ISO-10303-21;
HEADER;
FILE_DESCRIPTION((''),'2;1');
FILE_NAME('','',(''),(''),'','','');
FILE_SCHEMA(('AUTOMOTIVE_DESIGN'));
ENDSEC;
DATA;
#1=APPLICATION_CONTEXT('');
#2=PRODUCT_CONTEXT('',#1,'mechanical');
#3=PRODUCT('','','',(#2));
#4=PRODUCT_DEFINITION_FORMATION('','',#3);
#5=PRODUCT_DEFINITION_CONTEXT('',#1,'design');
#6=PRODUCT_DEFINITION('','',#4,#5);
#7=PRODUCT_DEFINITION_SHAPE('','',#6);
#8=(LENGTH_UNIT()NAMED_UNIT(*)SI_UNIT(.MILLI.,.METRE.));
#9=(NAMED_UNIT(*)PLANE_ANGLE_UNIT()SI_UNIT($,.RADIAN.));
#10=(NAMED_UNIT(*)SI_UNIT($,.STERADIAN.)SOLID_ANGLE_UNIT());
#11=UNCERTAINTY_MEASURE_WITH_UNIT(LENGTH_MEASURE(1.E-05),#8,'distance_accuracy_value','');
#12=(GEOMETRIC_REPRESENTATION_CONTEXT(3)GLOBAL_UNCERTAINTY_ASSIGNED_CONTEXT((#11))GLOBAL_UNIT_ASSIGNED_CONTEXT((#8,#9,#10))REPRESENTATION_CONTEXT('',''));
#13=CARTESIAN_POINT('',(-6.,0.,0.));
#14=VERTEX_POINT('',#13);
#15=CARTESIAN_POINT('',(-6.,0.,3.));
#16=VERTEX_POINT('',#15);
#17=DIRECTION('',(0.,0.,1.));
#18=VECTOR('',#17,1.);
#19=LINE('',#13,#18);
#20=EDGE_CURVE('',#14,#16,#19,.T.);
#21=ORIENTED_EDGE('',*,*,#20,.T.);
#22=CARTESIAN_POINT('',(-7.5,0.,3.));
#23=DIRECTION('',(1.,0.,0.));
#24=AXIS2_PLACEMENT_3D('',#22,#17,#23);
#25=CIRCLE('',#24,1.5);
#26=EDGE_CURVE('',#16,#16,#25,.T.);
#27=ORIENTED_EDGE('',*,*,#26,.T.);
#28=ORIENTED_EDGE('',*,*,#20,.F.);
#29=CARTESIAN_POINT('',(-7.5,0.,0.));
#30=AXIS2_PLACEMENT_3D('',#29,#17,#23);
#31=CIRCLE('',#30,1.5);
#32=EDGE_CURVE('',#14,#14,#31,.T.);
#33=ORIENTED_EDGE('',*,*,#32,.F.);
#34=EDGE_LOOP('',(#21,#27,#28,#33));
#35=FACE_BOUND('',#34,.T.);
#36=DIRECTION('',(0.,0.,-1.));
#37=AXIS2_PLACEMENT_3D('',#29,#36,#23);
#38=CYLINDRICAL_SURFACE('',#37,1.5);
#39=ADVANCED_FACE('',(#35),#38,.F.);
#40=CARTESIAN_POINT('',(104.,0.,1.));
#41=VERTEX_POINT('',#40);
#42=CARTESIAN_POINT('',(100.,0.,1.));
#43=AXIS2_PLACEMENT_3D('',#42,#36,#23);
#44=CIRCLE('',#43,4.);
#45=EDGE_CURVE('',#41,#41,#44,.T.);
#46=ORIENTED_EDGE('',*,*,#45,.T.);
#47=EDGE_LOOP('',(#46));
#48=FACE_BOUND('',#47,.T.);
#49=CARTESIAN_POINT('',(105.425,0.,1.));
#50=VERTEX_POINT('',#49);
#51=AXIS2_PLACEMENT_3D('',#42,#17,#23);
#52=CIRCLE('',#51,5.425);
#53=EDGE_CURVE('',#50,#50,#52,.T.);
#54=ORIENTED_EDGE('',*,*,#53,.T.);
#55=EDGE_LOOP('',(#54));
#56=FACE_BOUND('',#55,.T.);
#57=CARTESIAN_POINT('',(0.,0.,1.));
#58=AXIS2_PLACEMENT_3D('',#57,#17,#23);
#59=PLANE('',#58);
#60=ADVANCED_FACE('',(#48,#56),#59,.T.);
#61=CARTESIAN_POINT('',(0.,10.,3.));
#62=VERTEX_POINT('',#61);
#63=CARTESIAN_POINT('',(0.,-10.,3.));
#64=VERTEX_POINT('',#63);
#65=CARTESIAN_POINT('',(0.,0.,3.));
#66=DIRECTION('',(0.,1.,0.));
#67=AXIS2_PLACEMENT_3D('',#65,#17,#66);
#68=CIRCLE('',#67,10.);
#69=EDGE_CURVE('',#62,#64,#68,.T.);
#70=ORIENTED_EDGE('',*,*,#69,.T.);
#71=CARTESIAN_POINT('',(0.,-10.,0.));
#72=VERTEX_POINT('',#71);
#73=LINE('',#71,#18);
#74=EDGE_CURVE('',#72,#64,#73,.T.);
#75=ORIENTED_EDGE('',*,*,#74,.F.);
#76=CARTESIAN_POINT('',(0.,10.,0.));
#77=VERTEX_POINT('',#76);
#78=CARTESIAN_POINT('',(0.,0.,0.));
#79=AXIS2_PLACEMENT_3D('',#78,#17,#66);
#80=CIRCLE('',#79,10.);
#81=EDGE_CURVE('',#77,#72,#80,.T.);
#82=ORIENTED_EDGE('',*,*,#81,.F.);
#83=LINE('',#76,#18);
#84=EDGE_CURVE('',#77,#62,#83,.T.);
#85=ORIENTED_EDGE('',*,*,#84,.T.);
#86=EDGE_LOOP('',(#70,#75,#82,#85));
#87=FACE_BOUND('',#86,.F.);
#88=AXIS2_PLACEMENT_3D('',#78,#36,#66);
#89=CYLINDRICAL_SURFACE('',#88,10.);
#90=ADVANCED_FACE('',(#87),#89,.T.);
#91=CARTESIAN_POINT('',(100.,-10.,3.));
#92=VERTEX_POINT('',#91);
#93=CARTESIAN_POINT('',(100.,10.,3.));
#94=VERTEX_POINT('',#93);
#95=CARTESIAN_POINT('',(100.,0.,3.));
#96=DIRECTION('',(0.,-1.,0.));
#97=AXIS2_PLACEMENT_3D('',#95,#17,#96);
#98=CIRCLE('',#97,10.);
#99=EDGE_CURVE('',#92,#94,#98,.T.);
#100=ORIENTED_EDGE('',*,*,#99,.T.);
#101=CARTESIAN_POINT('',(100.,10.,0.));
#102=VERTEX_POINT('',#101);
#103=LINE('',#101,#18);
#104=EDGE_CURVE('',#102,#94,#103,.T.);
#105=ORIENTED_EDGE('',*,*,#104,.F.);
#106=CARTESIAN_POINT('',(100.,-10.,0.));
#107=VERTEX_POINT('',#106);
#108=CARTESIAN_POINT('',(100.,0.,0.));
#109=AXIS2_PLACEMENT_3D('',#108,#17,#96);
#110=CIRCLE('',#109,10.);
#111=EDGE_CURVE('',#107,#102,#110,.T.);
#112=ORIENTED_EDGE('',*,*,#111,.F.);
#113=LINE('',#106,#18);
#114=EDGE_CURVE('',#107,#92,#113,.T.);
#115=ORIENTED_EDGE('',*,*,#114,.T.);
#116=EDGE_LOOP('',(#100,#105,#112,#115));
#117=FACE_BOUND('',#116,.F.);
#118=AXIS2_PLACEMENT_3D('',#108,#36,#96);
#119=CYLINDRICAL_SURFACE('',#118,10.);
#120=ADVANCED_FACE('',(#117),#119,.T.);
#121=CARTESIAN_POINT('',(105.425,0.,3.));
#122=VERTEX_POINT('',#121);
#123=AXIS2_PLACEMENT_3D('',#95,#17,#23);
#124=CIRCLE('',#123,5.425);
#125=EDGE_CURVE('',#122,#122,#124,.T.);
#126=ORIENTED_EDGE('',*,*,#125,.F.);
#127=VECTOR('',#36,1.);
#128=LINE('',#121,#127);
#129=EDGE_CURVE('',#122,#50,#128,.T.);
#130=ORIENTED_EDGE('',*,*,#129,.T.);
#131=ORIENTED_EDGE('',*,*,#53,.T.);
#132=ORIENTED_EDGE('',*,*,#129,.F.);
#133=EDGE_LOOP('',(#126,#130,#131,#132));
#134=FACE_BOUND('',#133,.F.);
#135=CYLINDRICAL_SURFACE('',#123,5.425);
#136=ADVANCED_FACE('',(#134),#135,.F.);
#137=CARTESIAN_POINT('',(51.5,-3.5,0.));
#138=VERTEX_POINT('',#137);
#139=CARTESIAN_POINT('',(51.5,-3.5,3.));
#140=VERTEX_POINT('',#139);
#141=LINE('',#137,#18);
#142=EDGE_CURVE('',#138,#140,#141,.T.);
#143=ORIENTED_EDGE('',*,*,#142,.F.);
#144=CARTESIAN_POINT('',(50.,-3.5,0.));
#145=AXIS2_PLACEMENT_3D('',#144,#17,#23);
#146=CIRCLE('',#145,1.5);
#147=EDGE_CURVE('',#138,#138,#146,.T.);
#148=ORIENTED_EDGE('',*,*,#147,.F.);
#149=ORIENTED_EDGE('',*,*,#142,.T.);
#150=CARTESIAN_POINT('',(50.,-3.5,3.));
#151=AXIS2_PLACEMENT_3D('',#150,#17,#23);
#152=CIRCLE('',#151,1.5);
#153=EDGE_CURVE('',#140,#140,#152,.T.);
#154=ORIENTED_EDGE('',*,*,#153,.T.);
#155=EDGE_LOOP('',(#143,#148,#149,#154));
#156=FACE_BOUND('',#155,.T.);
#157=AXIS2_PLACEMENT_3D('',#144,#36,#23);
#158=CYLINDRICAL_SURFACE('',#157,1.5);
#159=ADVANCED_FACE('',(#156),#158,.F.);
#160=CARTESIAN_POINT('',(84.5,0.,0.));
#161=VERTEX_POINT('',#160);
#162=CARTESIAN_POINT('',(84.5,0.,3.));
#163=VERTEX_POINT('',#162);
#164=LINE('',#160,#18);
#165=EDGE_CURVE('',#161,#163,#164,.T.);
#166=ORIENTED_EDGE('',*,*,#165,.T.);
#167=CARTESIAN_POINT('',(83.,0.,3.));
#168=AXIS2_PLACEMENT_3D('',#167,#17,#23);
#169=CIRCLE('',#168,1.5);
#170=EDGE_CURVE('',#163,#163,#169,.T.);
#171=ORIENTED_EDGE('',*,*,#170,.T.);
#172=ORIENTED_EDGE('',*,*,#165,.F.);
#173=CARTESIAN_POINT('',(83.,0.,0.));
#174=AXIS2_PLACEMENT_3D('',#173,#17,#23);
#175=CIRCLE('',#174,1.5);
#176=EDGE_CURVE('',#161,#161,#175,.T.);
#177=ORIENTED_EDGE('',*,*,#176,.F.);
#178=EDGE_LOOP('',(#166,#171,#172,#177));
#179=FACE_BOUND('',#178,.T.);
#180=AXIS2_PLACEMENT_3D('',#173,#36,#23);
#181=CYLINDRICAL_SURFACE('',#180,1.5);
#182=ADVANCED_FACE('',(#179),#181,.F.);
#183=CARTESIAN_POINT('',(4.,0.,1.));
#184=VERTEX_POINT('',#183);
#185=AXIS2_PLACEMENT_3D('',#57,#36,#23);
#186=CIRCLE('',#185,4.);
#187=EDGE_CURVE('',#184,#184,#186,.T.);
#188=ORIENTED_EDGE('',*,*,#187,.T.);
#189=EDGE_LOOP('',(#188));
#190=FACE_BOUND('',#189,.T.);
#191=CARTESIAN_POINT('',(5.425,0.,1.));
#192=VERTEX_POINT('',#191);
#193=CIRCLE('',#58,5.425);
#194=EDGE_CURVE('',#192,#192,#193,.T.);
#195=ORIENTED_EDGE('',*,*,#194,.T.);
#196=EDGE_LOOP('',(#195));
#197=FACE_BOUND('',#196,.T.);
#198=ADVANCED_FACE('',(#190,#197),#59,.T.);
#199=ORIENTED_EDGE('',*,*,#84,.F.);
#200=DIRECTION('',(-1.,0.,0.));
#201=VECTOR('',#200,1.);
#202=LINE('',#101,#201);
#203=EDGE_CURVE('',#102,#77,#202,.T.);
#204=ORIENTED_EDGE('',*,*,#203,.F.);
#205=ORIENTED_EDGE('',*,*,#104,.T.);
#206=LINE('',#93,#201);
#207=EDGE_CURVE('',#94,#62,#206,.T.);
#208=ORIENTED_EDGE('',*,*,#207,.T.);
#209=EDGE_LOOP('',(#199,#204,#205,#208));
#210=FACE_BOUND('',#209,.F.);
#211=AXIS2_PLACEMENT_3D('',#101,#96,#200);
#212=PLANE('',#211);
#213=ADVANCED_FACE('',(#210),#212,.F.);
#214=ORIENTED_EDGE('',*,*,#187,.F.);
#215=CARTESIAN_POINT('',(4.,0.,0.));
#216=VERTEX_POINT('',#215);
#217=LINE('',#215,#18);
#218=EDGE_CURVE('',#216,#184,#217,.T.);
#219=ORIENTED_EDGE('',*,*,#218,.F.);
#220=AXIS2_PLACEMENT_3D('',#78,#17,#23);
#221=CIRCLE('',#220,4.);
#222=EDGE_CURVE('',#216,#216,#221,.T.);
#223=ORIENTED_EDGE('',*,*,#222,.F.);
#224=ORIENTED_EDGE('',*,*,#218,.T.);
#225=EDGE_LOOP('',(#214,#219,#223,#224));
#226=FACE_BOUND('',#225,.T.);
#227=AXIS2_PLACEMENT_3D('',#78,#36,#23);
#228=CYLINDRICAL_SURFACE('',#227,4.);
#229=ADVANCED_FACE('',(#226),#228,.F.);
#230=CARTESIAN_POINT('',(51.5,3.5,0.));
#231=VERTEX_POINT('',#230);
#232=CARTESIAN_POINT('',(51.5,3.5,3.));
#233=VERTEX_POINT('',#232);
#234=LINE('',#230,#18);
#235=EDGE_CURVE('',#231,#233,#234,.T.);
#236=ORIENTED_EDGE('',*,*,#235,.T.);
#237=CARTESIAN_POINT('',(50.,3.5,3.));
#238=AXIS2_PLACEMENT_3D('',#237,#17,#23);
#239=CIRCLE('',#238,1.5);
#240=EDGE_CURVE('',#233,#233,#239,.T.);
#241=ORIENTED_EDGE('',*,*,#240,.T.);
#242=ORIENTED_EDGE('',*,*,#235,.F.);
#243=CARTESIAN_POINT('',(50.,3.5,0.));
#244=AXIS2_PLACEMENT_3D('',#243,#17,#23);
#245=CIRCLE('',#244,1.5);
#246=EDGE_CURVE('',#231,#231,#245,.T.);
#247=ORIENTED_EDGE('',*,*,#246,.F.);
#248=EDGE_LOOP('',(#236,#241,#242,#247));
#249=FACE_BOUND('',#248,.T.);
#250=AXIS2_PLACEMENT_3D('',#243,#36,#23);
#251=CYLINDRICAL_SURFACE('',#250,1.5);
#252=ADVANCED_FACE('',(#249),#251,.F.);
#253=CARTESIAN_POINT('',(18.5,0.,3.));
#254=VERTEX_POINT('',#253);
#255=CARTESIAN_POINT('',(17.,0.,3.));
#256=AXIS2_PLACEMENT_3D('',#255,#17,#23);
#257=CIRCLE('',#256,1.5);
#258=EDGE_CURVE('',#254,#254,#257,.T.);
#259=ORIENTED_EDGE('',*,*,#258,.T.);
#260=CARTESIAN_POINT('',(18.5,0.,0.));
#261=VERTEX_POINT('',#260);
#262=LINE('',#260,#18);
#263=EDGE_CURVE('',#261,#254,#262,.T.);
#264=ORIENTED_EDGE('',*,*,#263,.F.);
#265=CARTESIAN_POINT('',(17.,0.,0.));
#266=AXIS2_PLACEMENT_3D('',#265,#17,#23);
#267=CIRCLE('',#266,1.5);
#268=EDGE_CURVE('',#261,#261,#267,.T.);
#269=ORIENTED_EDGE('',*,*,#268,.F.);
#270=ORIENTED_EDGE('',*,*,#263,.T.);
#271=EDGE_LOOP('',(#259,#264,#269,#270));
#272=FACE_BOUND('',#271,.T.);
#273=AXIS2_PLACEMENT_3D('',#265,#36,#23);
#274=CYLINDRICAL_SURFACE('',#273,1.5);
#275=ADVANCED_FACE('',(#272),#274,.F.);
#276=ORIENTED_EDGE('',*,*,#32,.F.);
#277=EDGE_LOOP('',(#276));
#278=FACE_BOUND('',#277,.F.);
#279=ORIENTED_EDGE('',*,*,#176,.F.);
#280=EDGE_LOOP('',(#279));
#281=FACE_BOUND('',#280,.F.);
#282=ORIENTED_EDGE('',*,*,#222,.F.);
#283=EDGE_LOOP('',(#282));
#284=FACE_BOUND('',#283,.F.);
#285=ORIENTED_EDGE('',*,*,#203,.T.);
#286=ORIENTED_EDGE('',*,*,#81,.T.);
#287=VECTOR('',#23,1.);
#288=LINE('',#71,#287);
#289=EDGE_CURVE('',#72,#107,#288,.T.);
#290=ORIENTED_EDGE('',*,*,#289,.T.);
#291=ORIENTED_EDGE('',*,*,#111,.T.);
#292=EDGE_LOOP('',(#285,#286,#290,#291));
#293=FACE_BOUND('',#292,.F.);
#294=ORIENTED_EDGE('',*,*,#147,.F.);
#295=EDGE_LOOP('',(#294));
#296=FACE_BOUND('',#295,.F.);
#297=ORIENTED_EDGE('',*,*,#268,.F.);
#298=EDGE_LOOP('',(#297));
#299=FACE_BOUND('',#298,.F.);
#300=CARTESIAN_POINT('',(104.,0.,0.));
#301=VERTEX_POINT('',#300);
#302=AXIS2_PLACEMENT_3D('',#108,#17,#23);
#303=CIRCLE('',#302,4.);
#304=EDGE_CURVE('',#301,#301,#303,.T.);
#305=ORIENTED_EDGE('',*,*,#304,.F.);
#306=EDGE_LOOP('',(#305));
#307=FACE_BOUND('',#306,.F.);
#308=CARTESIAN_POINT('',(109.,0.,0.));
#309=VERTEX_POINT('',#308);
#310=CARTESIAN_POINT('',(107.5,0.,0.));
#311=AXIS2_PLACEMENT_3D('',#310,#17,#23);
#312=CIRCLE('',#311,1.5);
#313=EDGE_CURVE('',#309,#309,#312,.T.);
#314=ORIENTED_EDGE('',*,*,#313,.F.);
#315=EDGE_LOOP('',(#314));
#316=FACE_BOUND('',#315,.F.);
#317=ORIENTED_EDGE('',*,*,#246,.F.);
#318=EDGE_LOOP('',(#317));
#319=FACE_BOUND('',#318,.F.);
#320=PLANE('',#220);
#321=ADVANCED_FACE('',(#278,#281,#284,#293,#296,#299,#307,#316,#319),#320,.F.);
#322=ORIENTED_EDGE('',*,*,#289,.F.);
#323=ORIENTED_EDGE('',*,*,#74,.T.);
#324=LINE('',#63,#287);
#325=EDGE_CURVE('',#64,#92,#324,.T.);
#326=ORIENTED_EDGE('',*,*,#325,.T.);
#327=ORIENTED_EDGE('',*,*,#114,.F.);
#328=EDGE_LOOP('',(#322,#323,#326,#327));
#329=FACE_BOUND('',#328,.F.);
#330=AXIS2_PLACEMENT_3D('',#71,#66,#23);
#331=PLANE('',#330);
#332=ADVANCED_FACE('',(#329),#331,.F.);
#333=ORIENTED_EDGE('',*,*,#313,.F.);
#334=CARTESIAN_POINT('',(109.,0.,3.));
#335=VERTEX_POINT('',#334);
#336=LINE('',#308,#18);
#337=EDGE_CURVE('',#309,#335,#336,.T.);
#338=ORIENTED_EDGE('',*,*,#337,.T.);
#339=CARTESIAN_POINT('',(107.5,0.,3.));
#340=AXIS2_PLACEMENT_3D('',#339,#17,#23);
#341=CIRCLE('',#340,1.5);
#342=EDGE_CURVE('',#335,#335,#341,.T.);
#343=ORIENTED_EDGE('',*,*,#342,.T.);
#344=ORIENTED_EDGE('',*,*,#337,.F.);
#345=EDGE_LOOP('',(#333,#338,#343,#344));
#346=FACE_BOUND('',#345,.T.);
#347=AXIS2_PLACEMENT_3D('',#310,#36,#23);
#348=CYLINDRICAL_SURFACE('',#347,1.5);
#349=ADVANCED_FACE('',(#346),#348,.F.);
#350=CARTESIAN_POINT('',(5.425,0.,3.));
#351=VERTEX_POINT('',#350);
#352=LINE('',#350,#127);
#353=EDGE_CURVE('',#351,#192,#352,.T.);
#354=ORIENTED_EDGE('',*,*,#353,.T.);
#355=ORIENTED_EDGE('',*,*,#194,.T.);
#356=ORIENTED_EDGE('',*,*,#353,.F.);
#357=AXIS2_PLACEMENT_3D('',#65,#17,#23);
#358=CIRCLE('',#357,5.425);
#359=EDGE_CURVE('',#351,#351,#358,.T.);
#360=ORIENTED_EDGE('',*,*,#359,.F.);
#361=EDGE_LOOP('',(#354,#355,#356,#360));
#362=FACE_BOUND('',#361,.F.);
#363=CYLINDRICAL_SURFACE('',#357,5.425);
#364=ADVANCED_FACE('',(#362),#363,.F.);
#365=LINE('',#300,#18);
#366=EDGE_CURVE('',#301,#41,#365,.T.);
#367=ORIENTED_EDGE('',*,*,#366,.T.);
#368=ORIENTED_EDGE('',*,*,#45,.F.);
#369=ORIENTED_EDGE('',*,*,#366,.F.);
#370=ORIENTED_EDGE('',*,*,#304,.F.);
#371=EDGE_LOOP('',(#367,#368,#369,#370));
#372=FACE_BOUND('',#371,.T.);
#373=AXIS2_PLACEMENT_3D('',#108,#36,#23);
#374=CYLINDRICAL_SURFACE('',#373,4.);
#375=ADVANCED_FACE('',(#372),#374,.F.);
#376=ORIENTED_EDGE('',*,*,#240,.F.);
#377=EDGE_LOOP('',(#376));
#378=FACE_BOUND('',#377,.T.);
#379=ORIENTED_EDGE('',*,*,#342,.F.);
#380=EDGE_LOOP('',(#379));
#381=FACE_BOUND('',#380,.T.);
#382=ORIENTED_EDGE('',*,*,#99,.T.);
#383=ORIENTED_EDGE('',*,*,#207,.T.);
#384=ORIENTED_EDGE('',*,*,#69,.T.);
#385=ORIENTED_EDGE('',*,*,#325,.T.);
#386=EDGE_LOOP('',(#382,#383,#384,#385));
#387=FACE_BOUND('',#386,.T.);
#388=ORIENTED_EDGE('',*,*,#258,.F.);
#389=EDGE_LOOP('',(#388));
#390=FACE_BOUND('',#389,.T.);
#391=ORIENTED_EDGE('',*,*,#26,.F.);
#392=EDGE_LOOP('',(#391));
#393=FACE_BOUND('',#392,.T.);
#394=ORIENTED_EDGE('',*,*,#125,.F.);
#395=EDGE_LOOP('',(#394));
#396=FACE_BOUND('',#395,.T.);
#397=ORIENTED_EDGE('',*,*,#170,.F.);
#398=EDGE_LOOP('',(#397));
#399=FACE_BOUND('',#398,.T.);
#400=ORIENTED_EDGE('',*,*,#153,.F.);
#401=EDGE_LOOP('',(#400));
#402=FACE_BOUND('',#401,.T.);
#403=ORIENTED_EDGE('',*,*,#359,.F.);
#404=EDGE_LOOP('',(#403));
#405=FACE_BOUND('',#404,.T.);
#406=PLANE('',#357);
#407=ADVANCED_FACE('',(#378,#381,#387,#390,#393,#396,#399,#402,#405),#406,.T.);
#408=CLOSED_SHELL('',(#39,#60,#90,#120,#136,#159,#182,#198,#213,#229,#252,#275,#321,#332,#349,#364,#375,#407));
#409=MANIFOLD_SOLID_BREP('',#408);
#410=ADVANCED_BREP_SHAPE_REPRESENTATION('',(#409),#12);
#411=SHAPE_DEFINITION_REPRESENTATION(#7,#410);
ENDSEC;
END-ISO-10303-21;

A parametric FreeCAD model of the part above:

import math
import FreeCAD as App
import Part
import Sketcher
from FreeCAD import Vector

doc = App.newDocument("Part")
body = doc.addObject("PartDesign::Body", "Body")

# Sketch on XY plane
sketch1 = doc.addObject("Sketcher::SketchObject", "Sketch")
body.addObject(sketch1)
sketch1.AttachmentSupport = (doc.XY_Plane, [""])
sketch1.MapMode = "FlatFace"
sketch1.addGeometry([
    Part.ArcOfCircle(Part.Circle(Vector(0, 0, 0), Vector(0, 0, 1), 10), math.radians(90), math.radians(270)),  # 0
    Part.LineSegment(Vector(0, -10, 0), Vector(100, -10, 0)),  # 1
    Part.ArcOfCircle(Part.Circle(Vector(100, 0, 0), Vector(0, 0, 1), 10), math.radians(-90), math.radians(90)),  # 2
    Part.LineSegment(Vector(100, 10, 0), Vector(0, 10, 0)),  # 3
    Part.Circle(Vector(50, -3.5, 0), Vector(0, 0, 1), 1.5),  # 4
    Part.Circle(Vector(-7.5, 0, 0), Vector(0, 0, 1), 1.5),  # 5
    Part.Circle(Vector(0, 0, 0), Vector(0, 0, 1), 4),  # 6
    Part.Circle(Vector(17, 0, 0), Vector(0, 0, 1), 1.5),  # 7
    Part.Circle(Vector(50, 3.5, 0), Vector(0, 0, 1), 1.5),  # 8
    Part.Circle(Vector(83, 0, 0), Vector(0, 0, 1), 1.5),  # 9
    Part.Circle(Vector(100, 0, 0), Vector(0, 0, 1), 4),  # 10
    Part.Circle(Vector(107.5, 0, 0), Vector(0, 0, 1), 1.5),  # 11
], False)
sketch1.addConstraint([
    Sketcher.Constraint("Tangent", 0, 2, 1, 1),
    Sketcher.Constraint("Tangent", 1, 2, 2, 1),
    Sketcher.Constraint("Tangent", 2, 2, 3, 1),
    Sketcher.Constraint("Tangent", 3, 2, 0, 1),
    Sketcher.Constraint("Horizontal", 1),
    Sketcher.Constraint("Horizontal", 3),
    Sketcher.Constraint("Coincident", 0, 3, -1, 1),
    Sketcher.Constraint("Coincident", 6, 3, -1, 1),
    Sketcher.Constraint("Coincident", 10, 3, 2, 3),
    Sketcher.Constraint("Equal", 4, 5),
    Sketcher.Constraint("Equal", 5, 7),
    Sketcher.Constraint("Equal", 7, 8),
    Sketcher.Constraint("Equal", 8, 9),
    Sketcher.Constraint("Equal", 6, 10),
    Sketcher.Constraint("Equal", 9, 11),
    Sketcher.Constraint("Symmetric", 4, 3, 8, 3, -1),
    Sketcher.Constraint("PointOnObject", 5, 3, -1),
    Sketcher.Constraint("PointOnObject", 7, 3, -1),
    Sketcher.Constraint("PointOnObject", 9, 3, -1),
    Sketcher.Constraint("PointOnObject", 11, 3, -1),
    Sketcher.Constraint("Diameter", 4, 3.0),
    Sketcher.Constraint("Diameter", 6, 8.0),
    Sketcher.Constraint("Radius", 0, 10.0),
    Sketcher.Constraint("DistanceX", 1, 1, 1, 2, 100.0),
    Sketcher.Constraint("DistanceX", -1, 1, 7, 3, 17.0),
    Sketcher.Constraint("DistanceX", 9, 3, 2, 3, 17.0),
    Sketcher.Constraint("DistanceY", 4, 3, -1, 1, 3.5),
    Sketcher.Constraint("DistanceX", 5, 3, -1, 1, 7.5),
    Sketcher.Constraint("DistanceX", 2, 3, 11, 3, 7.5),
    Sketcher.Constraint("DistanceX", -1, 1, 4, 3, 50.0),
])
pad1 = doc.addObject("PartDesign::Pad", "Pad")
body.addObject(pad1)
pad1.Profile = sketch1
pad1.Length = 3

# Sketch on XY plane
sketch2 = doc.addObject("Sketcher::SketchObject", "Sketch001")
body.addObject(sketch2)
sketch2.AttachmentSupport = (doc.XY_Plane, [""])
sketch2.MapMode = "FlatFace"
sketch2.AttachmentOffset = App.Placement(Vector(0, 0, 3), App.Rotation())
sketch2.addGeometry([
    Part.Circle(Vector(0, 0, 0), Vector(0, 0, 1), 5.425),
    Part.Circle(Vector(100, 0, 0), Vector(0, 0, 1), 5.425),
], False)
sketch2.addConstraint([
    Sketcher.Constraint("Coincident", 0, 3, -1, 1),
    Sketcher.Constraint("Equal", 0, 1),
    Sketcher.Constraint("PointOnObject", 1, 3, -1),
    Sketcher.Constraint("Diameter", 0, 10.85),
    Sketcher.Constraint("DistanceX", -1, 1, 1, 3, 100.0),
])
pocket1 = doc.addObject("PartDesign::Pocket", "Pocket")
body.addObject(pocket1)
pocket1.Profile = sketch2
pocket1.Length = 2

doc.recompute()
